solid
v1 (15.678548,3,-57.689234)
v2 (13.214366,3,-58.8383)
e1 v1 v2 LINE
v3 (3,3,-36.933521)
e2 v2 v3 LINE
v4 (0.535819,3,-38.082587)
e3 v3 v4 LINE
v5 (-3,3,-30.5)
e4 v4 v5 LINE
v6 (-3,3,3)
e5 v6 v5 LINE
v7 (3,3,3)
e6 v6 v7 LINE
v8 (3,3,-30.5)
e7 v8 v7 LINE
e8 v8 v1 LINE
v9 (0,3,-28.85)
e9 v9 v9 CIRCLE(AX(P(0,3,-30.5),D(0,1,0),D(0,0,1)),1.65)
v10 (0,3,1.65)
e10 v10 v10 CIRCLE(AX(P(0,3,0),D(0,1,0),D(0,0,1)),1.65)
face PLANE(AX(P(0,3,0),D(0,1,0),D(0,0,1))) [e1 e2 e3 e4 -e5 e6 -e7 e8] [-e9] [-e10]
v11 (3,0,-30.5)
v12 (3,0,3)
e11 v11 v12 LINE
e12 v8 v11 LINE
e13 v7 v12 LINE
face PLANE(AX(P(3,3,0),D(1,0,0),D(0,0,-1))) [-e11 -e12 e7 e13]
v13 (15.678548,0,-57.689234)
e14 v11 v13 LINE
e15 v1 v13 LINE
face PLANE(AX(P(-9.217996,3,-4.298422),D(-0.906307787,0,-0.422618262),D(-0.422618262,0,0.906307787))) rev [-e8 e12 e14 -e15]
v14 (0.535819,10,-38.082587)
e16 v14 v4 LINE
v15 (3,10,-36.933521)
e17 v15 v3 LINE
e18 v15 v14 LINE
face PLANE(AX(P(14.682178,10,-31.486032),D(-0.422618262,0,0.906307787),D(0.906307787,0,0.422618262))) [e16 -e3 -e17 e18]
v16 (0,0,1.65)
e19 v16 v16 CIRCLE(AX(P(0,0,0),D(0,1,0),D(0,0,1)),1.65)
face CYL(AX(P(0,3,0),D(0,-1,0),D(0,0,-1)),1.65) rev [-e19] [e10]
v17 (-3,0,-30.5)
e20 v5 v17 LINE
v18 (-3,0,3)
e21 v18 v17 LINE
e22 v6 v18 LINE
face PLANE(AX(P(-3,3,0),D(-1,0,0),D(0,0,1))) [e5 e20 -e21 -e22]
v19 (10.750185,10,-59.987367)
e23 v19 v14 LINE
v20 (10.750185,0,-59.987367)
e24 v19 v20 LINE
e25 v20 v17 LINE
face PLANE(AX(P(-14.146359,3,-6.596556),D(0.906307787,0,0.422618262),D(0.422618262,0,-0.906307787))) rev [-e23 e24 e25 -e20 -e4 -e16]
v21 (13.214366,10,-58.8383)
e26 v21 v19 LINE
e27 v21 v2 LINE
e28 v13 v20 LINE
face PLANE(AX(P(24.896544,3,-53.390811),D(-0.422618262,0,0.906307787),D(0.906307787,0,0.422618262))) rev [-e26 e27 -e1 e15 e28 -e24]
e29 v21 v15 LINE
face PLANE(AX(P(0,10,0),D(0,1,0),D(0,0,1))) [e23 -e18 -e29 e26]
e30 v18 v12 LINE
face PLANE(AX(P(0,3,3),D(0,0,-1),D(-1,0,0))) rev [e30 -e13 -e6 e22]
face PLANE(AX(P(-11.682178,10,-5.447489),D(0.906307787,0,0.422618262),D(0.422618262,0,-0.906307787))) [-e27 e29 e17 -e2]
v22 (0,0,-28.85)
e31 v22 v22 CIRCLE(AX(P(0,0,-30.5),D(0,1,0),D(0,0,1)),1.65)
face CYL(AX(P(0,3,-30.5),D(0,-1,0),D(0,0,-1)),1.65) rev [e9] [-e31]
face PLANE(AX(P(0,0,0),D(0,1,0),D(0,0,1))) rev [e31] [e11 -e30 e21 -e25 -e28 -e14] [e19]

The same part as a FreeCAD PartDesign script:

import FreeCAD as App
import Part
import Sketcher

V = App.Vector
Q = App.Units.Quantity


def add_polygon(sketch, points):
    """Adds a closed chain of lines whose ends are joined by coincident constraints."""
    first, n = sketch.GeometryCount, len(points)
    for a, b in zip(points, points[1:] + points[:1]):
        sketch.addGeometry(Part.LineSegment(App.Vector(*a, 0), App.Vector(*b, 0)), False)
    for i in range(n):
        sketch.addConstraint(Sketcher.Constraint("Coincident", first + i, 2, first + (i + 1) % n, 1))

doc = App.newDocument("Part")
body = doc.addObject("PartDesign::Body", "Body")

sketch1 = body.newObject("Sketcher::SketchObject", "Sketch")
sketch1.AttachmentSupport = (doc.getObject("XZ_Plane"), [""])
sketch1.MapMode = "FlatFace"
add_polygon(sketch1, [(-3, -30.5), (-3, 3), (3, 3), (3, -30.5), (15.678548, -57.689234), (13.214366, -58.8383), (3, -36.933521), (0.535819, -38.082587)])
sketch1.addGeometry(Part.Circle(V(0, 0, 0), V(0, 0, 1), 1.65), False)
sketch1.addGeometry(Part.Circle(V(0, -30.5, 0), V(0, 0, 1), 1.65), False)
sketch1.addConstraint(Sketcher.Constraint("Vertical", 0))
sketch1.addConstraint(Sketcher.Constraint("Horizontal", 1))
sketch1.addConstraint(Sketcher.Constraint("Vertical", 2))
sketch1.addConstraint(Sketcher.Constraint("Coincident", 8, 3, -1, 1))
sketch1.addConstraint(Sketcher.Constraint("Equal", 8, 9))
sketch1.addConstraint(Sketcher.Constraint("Symmetric", 2, 2, 7, 2, -2))
sketch1.addConstraint(Sketcher.Constraint("PointOnObject", 9, 3, -2))
sketch1.addConstraint(Sketcher.Constraint("Perpendicular", 3, 4))
sketch1.addConstraint(Sketcher.Constraint("Perpendicular", 4, 5))
sketch1.addConstraint(Sketcher.Constraint("Perpendicular", 5, 6))
sketch1.addConstraint(Sketcher.Constraint("Perpendicular", 6, 7))
sketch1.addConstraint(Sketcher.Constraint("Horizontal", 9, 3, 2, 2))
sketch1.addConstraint(Sketcher.Constraint("Vertical", 2, 2, 5, 2))
sketch1.addConstraint(Sketcher.Constraint("Equal", 4, 6))
sketch1.addConstraint(Sketcher.Constraint("Diameter", 8, Q("3.3 mm")))
sketch1.addConstraint(Sketcher.Constraint("DistanceX", 1, 1, 1, 2, Q("6 mm")))
sketch1.addConstraint(Sketcher.Constraint("Angle", 3, Q("-65 deg")))
sketch1.addConstraint(Sketcher.Constraint("Distance", 3, Q("30 mm")))
sketch1.addConstraint(Sketcher.Constraint("DistanceY", 0, 1, 0, 2, Q("33.5 mm")))
sketch1.addConstraint(Sketcher.Constraint("DistanceY", -1, 1, 0, 2, Q("3 mm")))
pad1 = body.newObject("PartDesign::Pad", "Pad")
pad1.Profile = sketch1
pad1.Length = 3
pad1.Reversed = True

sketch2 = body.newObject("Sketcher::SketchObject", "Sketch001")
sketch2.AttachmentSupport = (doc.getObject("XZ_Plane"), [""])
sketch2.MapMode = "FlatFace"
add_polygon(sketch2, [(10.750185, -59.987367), (0.535819, -38.082587), (3, -36.933521), (13.214366, -58.8383)])
sketch2.addConstraint(Sketcher.Constraint("Perpendicular", 0, 1))
sketch2.addConstraint(Sketcher.Constraint("Perpendicular", 1, 2))
sketch2.addConstraint(Sketcher.Constraint("Perpendicular", 2, 3))
sketch2.addConstraint(Sketcher.Constraint("Angle", 0, Q("115 deg")))
sketch2.addConstraint(Sketcher.Constraint("DistanceX", -1, 1, 1, 2, Q("3 mm")))
sketch2.addConstraint(Sketcher.Constraint("DistanceY", 2, 2, -1, 1, Q("58.8383 mm")))
sketch2.addConstraint(Sketcher.Constraint("Distance", 0, Q("24.16925 mm")))
sketch2.addConstraint(Sketcher.Constraint("DistanceX", -1, 1, 0, 2, Q("0.535819 mm")))
pad2 = body.newObject("PartDesign::Pad", "Pad001")
pad2.Profile = sketch2
pad2.Length = 10
pad2.Reversed = True

doc.recompute()
